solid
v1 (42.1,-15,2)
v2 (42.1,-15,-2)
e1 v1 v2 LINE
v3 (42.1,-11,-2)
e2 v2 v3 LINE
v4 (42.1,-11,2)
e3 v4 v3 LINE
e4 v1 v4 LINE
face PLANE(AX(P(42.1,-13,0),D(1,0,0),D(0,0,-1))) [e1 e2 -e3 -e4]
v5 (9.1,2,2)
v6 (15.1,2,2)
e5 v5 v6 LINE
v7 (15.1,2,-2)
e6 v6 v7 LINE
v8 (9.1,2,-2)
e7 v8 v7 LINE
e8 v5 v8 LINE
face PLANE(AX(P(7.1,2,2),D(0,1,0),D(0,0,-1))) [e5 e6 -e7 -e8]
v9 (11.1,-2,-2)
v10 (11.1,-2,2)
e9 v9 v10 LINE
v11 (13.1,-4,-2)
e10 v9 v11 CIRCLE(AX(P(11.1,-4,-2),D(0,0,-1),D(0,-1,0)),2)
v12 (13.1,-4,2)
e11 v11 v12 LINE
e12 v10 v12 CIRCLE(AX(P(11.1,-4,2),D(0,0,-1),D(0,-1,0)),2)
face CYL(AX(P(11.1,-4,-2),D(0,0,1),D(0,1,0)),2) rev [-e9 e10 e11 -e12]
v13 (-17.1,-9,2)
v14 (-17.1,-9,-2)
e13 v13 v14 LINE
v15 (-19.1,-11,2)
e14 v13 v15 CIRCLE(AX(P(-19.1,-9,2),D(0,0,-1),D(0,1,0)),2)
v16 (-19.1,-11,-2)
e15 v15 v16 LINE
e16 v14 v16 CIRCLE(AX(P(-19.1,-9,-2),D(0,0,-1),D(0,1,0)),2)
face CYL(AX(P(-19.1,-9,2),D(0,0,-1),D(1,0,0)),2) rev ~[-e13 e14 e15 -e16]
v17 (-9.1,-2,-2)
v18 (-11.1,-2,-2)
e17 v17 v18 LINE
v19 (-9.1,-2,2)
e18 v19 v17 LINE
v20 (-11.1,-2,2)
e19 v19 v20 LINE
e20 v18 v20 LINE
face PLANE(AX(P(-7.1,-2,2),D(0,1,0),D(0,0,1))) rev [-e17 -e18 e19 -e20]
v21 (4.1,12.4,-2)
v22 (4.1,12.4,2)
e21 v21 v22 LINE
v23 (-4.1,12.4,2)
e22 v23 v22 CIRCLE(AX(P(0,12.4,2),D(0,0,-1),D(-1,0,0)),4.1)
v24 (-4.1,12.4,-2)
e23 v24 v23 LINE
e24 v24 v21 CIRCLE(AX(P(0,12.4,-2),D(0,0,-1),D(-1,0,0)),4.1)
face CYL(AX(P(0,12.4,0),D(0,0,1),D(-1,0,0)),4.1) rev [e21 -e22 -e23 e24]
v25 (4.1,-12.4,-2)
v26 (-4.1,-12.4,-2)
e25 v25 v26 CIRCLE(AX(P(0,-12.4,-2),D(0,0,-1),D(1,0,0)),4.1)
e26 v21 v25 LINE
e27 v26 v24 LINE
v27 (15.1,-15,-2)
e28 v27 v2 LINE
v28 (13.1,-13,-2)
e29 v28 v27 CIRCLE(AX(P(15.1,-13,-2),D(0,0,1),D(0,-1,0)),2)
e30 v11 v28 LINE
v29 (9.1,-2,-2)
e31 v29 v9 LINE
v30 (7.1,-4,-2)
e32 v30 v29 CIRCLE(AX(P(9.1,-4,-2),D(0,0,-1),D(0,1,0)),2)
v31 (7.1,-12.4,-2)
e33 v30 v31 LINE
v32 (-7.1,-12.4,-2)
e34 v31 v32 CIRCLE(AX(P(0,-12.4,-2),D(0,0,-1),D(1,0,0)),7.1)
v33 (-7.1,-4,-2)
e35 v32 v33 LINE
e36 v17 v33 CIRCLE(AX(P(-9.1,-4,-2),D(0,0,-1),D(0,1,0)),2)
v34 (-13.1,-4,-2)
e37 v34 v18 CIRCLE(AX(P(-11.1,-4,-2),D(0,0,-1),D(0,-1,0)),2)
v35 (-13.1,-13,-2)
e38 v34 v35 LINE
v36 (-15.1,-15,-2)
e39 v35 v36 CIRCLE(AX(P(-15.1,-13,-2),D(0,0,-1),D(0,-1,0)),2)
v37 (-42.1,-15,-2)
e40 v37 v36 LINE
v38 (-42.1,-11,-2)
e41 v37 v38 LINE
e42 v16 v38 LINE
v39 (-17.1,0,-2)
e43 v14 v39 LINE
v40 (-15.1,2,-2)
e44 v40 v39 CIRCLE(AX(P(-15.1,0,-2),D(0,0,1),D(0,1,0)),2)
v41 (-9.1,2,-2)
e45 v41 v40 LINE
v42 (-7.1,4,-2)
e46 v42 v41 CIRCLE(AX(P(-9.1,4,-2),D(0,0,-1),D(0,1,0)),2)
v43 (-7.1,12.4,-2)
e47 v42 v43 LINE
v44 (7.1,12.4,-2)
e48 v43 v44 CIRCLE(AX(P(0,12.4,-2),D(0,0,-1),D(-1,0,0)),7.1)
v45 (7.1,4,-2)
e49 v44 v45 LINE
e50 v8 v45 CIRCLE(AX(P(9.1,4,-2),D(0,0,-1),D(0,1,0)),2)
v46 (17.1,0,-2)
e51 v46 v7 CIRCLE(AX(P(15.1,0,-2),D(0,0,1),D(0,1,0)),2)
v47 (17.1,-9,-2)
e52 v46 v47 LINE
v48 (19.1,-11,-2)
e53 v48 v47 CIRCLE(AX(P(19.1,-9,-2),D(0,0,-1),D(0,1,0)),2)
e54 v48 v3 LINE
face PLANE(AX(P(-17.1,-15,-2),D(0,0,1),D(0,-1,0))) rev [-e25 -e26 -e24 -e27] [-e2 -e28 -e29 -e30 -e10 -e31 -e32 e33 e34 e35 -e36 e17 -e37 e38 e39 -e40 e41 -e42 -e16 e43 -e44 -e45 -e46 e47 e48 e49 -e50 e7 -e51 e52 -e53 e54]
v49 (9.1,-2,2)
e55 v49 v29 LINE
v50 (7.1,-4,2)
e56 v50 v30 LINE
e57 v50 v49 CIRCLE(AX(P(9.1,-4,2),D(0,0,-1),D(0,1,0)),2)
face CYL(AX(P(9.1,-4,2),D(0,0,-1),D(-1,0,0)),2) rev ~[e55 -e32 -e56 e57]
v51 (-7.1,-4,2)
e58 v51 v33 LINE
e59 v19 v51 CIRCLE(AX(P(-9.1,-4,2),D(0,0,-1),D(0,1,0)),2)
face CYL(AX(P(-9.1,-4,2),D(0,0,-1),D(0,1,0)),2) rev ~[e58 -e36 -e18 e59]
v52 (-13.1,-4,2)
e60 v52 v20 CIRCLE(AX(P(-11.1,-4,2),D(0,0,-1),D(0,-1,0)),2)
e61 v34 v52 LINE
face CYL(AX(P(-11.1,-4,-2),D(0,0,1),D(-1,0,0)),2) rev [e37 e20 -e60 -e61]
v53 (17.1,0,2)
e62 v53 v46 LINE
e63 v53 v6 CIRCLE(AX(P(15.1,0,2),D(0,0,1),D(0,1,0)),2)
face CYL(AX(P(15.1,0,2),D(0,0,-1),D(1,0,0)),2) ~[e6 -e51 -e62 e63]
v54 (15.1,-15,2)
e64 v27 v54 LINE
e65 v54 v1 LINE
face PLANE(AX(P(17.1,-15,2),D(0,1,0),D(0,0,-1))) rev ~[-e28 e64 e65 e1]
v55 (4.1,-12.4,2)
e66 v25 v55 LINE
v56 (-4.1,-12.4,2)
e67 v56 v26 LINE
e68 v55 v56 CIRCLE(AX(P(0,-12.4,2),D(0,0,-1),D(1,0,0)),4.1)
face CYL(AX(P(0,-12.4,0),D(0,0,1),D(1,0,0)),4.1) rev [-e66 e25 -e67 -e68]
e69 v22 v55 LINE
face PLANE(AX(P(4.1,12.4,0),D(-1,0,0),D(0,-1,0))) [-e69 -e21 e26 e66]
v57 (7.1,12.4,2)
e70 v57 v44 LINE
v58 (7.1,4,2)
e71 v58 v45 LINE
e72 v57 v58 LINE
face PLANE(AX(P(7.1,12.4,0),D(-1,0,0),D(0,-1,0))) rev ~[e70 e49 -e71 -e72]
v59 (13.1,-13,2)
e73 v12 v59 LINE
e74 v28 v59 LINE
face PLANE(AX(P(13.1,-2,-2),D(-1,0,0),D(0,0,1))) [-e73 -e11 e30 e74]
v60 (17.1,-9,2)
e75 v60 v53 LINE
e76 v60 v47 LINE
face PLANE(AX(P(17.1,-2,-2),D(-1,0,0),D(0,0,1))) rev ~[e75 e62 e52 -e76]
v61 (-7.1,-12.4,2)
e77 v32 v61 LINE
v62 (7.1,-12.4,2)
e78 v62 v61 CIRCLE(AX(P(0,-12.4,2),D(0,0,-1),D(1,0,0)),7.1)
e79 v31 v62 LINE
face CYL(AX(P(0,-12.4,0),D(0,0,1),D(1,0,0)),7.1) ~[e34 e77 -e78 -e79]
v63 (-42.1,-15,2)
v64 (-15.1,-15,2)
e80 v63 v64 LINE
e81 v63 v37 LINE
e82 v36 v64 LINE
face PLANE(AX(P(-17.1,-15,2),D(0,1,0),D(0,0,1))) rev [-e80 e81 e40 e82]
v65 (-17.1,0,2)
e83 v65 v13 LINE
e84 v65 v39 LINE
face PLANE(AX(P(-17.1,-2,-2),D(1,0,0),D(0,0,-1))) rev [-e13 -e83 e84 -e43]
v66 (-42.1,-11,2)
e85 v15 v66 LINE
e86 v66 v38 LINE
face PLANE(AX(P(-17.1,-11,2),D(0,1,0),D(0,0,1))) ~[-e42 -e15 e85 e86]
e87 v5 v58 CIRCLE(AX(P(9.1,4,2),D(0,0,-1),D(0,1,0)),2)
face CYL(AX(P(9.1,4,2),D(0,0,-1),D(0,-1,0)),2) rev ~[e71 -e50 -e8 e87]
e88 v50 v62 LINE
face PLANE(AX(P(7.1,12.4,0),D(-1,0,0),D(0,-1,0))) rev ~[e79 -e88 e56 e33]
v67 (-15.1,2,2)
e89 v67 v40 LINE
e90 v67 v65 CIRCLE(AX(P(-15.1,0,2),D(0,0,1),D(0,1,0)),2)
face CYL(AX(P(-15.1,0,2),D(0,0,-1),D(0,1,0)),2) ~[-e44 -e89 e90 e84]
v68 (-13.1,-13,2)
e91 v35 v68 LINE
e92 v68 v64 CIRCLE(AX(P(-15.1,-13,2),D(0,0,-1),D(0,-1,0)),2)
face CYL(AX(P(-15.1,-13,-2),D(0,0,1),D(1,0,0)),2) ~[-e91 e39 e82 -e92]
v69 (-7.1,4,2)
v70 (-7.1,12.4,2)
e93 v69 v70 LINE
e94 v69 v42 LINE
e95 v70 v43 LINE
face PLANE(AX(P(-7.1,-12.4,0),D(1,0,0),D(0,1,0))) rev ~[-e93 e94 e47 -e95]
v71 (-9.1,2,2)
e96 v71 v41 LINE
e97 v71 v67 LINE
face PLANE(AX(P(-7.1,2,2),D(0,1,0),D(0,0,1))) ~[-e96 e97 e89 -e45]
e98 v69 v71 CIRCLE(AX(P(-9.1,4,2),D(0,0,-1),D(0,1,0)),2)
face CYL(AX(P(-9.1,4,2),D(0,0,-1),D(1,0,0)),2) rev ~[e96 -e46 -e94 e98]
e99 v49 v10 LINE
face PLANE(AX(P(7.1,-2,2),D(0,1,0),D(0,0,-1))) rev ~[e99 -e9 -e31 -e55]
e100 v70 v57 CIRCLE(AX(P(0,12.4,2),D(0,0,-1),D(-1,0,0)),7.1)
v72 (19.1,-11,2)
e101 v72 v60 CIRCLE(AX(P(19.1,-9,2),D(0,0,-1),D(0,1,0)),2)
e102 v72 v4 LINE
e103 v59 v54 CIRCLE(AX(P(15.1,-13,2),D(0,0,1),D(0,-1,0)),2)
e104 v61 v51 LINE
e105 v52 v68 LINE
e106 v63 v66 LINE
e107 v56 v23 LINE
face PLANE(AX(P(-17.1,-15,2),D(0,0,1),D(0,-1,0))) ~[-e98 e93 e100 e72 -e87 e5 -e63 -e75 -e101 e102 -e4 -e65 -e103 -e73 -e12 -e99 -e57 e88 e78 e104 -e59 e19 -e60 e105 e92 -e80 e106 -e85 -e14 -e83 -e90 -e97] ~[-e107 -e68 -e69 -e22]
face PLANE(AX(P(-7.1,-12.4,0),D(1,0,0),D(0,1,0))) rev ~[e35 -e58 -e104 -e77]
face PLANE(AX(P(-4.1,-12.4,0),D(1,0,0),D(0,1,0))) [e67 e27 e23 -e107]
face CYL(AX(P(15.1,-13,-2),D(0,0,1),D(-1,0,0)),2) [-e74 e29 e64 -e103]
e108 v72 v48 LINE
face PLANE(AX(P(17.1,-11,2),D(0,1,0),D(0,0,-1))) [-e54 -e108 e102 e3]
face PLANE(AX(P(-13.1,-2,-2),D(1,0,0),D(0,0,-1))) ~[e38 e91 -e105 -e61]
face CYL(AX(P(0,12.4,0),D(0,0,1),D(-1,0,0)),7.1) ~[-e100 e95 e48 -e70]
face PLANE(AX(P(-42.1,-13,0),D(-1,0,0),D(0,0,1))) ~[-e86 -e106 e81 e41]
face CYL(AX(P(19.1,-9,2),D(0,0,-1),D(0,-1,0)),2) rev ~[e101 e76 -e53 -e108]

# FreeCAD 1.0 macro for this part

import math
import FreeCAD as App
import Part
import Sketcher


def edges_at(feature, points):
    """Names of the edges that pass closest to the given points."""
    edges = feature.Shape.Edges
    near = lambda p: min(range(len(edges)), key=lambda i: edges[i].distToShape(Part.Vertex(*p))[0])
    return sorted({f"Edge{near(p) + 1}" for p in points})

doc = App.newDocument("Part")
body = doc.addObject("PartDesign::Body", "Body")

# Sketch on XY plane
sketch1 = body.newObject("Sketcher::SketchObject", "Sketch")
sketch1.AttachmentSupport = (doc.getObject("XY_Plane"), [""])
sketch1.MapMode = "FlatFace"
sketch1.addGeometry(Part.LineSegment(App.Vector(-7.1, 12.4, 0), App.Vector(-7.1, -12.4, 0)), False)
sketch1.addGeometry(Part.ArcOfCircle(Part.Circle(App.Vector(0, -12.4, 0), App.Vector(0, 0, 1), 7.1), math.radians(180), math.radians(360)), False)
sketch1.addGeometry(Part.LineSegment(App.Vector(7.1, -12.4, 0), App.Vector(7.1, 12.4, 0)), False)
sketch1.addGeometry(Part.ArcOfCircle(Part.Circle(App.Vector(0, 12.4, 0), App.Vector(0, 0, 1), 7.1), math.radians(0), math.radians(180)), False)
sketch1.addGeometry(Part.LineSegment(App.Vector(-4.1, -12.4, 0), App.Vector(-4.1, 12.4, 0)), False)
sketch1.addGeometry(Part.ArcOfCircle(Part.Circle(App.Vector(0, 12.4, 0), App.Vector(0, 0, 1), 4.1), math.radians(0), math.radians(180)), False)
sketch1.addGeometry(Part.LineSegment(App.Vector(4.1, 12.4, 0), App.Vector(4.1, -12.4, 0)), False)
sketch1.addGeometry(Part.ArcOfCircle(Part.Circle(App.Vector(0, -12.4, 0), App.Vector(0, 0, 1), 4.1), math.radians(180), math.radians(360)), False)
sketch1.addConstraint(Sketcher.Constraint("Tangent", 0, 2, 1, 1))
sketch1.addConstraint(Sketcher.Constraint("Tangent", 1, 2, 2, 1))
sketch1.addConstraint(Sketcher.Constraint("Tangent", 2, 2, 3, 1))
sketch1.addConstraint(Sketcher.Constraint("Tangent", 3, 2, 0, 1))
sketch1.addConstraint(Sketcher.Constraint("Tangent", 4, 2, 5, 2))
sketch1.addConstraint(Sketcher.Constraint("Tangent", 5, 1, 6, 1))
sketch1.addConstraint(Sketcher.Constraint("Tangent", 6, 2, 7, 2))
sketch1.addConstraint(Sketcher.Constraint("Tangent", 7, 1, 4, 1))
sketch1.addConstraint(Sketcher.Constraint("Vertical", 0))
sketch1.addConstraint(Sketcher.Constraint("Vertical", 2))
sketch1.addConstraint(Sketcher.Constraint("Vertical", 4))
sketch1.addConstraint(Sketcher.Constraint("Vertical", 6))
sketch1.addConstraint(Sketcher.Constraint("Coincident", 5, 3, 3, 3))
sketch1.addConstraint(Sketcher.Constraint("Symmetric", 1, 3, 3, 3, -1, 1))
sketch1.addConstraint(Sketcher.Constraint("Horizontal", 7, 3, 0, 2))
sketch1.addConstraint(Sketcher.Constraint("Radius", 1, 7.1))
sketch1.addConstraint(Sketcher.Constraint("Radius", 5, 4.1))
sketch1.addConstraint(Sketcher.Constraint("DistanceY", 0, 2, 0, 1, 24.8))
pad1 = body.newObject("PartDesign::Pad", "Pad")
pad1.Profile = sketch1
pad1.Length = 4
pad1.Midplane = True

# Sketch on YZ plane
sketch2 = body.newObject("Sketcher::SketchObject", "Sketch001")
sketch2.AttachmentSupport = (doc.getObject("YZ_Plane"), [""])
sketch2.MapMode = "FlatFace"
sketch2.AttachmentOffset = App.Placement(App.Vector(0, 0, 7.1), App.Rotation())
sketch2.addGeometry(Part.LineSegment(App.Vector(2, 2, 0), App.Vector(-2, 2, 0)), False)
sketch2.addGeometry(Part.LineSegment(App.Vector(-2, 2, 0), App.Vector(-2, -2, 0)), False)
sketch2.addGeometry(Part.LineSegment(App.Vector(-2, -2, 0), App.Vector(2, -2, 0)), False)
sketch2.addGeometry(Part.LineSegment(App.Vector(2, -2, 0), App.Vector(2, 2, 0)), False)
sketch2.addConstraint(Sketcher.Constraint("Coincident", 0, 2, 1, 1))
sketch2.addConstraint(Sketcher.Constraint("Coincident", 1, 2, 2, 1))
sketch2.addConstraint(Sketcher.Constraint("Coincident", 2, 2, 3, 1))
sketch2.addConstraint(Sketcher.Constraint("Coincident", 3, 2, 0, 1))
sketch2.addConstraint(Sketcher.Constraint("Horizontal", 0))
sketch2.addConstraint(Sketcher.Constraint("Vertical", 1))
sketch2.addConstraint(Sketcher.Constraint("Horizontal", 2))
sketch2.addConstraint(Sketcher.Constraint("Vertical", 3))
sketch2.addConstraint(Sketcher.Constraint("Symmetric", 0, 2, 2, 2, -1, 1))
sketch2.addConstraint(Sketcher.Constraint("Equal", 2, 1))
sketch2.addConstraint(Sketcher.Constraint("DistanceX", 0, 2, 0, 1, 4.0))
pad2 = body.newObject("PartDesign::Pad", "Pad001")
pad2.Profile = sketch2
pad2.Length = 10

# Sketch on XZ plane
sketch3 = body.newObject("Sketcher::SketchObject", "Sketch002")
sketch3.AttachmentSupport = (doc.getObject("XZ_Plane"), [""])
sketch3.MapMode = "FlatFace"
sketch3.AttachmentOffset = App.Placement(App.Vector(0, 0, 2), App.Rotation())
sketch3.addGeometry(Part.LineSegment(App.Vector(13.1, 2, 0), App.Vector(13.1, -2, 0)), False)
sketch3.addGeometry(Part.LineSegment(App.Vector(13.1, -2, 0), App.Vector(17.1, -2, 0)), False)
sketch3.addGeometry(Part.LineSegment(App.Vector(17.1, -2, 0), App.Vector(17.1, 2, 0)), False)
sketch3.addGeometry(Part.LineSegment(App.Vector(17.1, 2, 0), App.Vector(13.1, 2, 0)), False)
sketch3.addConstraint(Sketcher.Constraint("Coincident", 0, 2, 1, 1))
sketch3.addConstraint(Sketcher.Constraint("Coincident", 1, 2, 2, 1))
sketch3.addConstraint(Sketcher.Constraint("Coincident", 2, 2, 3, 1))
sketch3.addConstraint(Sketcher.Constraint("Coincident", 3, 2, 0, 1))
sketch3.addConstraint(Sketcher.Constraint("Vertical", 0))
sketch3.addConstraint(Sketcher.Constraint("Horizontal", 1))
sketch3.addConstraint(Sketcher.Constraint("Vertical", 2))
sketch3.addConstraint(Sketcher.Constraint("Horizontal", 3))
sketch3.addConstraint(Sketcher.Constraint("Equal", 3, 0))
sketch3.addConstraint(Sketcher.Constraint("DistanceX", 1, 1, 1, 2, 4.0))
sketch3.addConstraint(Sketcher.Constraint("DistanceY", 0, 2, -1, 1, 2.0))
sketch3.addConstraint(Sketcher.Constraint("DistanceX", -1, 1, 0, 2, 13.1))
pad3 = body.newObject("PartDesign::Pad", "Pad002")
pad3.Profile = sketch3
pad3.Length = 13

# Sketch on YZ plane
sketch4 = body.newObject("Sketcher::SketchObject", "Sketch003")
sketch4.AttachmentSupport = (doc.getObject("YZ_Plane"), [""])
sketch4.MapMode = "FlatFace"
sketch4.AttachmentOffset = App.Placement(App.Vector(0, 0, 17.1), App.Rotation())
sketch4.addGeometry(Part.LineSegment(App.Vector(-11, 2, 0), App.Vector(-15, 2, 0)), False)
sketch4.addGeometry(Part.LineSegment(App.Vector(-15, 2, 0), App.Vector(-15, -2, 0)), False)
sketch4.addGeometry(Part.LineSegment(App.Vector(-15, -2, 0), App.Vector(-11, -2, 0)), False)
sketch4.addGeometry(Part.LineSegment(App.Vector(-11, -2, 0), App.Vector(-11, 2, 0)), False)
sketch4.addConstraint(Sketcher.Constraint("Coincident", 0, 2, 1, 1))
sketch4.addConstraint(Sketcher.Constraint("Coincident", 1, 2, 2, 1))
sketch4.addConstraint(Sketcher.Constraint("Coincident", 2, 2, 3, 1))
sketch4.addConstraint(Sketcher.Constraint("Coincident", 3, 2, 0, 1))
sketch4.addConstraint(Sketcher.Constraint("Horizontal", 0))
sketch4.addConstraint(Sketcher.Constraint("Vertical", 1))
sketch4.addConstraint(Sketcher.Constraint("Horizontal", 2))
sketch4.addConstraint(Sketcher.Constraint("Vertical", 3))
sketch4.addConstraint(Sketcher.Constraint("Equal", 2, 1))
sketch4.addConstraint(Sketcher.Constraint("DistanceX", 0, 2, 0, 1, 4.0))
sketch4.addConstraint(Sketcher.Constraint("DistanceX", 0, 2, -1, 1, 15.0))
sketch4.addConstraint(Sketcher.Constraint("DistanceY", -1, 1, 0, 2, 2.0))
pad4 = body.newObject("PartDesign::Pad", "Pad003")
pad4.Profile = sketch4
pad4.Length = 25
doc.recompute()

mirrored = body.newObject("PartDesign::Mirrored", "Mirrored")
mirrored.Originals = [pad2, pad3, pad4]
mirrored.MirrorPlane = (doc.getObject("YZ_Plane"), [""])
body.Tip = mirrored
doc.recompute()

fillet = body.newObject("PartDesign::Fillet", "Fillet")
fillet.Base = (mirrored, edges_at(mirrored, [
    (7.1, 2, 0),
    (7.1, -2, 0),
    (17.1, 2, 0),
    (13.1, -2, 0),
    (13.1, -15, 0),
    (17.1, -11, 0),
    (-17.1, 2, 0),
    (-7.1, 2, 0),
    (-7.1, -2, 0),
    (-13.1, -15, 0),
    (-13.1, -2, 0),
    (-17.1, -11, 0),
]))
fillet.Radius = 2

doc.recompute()
